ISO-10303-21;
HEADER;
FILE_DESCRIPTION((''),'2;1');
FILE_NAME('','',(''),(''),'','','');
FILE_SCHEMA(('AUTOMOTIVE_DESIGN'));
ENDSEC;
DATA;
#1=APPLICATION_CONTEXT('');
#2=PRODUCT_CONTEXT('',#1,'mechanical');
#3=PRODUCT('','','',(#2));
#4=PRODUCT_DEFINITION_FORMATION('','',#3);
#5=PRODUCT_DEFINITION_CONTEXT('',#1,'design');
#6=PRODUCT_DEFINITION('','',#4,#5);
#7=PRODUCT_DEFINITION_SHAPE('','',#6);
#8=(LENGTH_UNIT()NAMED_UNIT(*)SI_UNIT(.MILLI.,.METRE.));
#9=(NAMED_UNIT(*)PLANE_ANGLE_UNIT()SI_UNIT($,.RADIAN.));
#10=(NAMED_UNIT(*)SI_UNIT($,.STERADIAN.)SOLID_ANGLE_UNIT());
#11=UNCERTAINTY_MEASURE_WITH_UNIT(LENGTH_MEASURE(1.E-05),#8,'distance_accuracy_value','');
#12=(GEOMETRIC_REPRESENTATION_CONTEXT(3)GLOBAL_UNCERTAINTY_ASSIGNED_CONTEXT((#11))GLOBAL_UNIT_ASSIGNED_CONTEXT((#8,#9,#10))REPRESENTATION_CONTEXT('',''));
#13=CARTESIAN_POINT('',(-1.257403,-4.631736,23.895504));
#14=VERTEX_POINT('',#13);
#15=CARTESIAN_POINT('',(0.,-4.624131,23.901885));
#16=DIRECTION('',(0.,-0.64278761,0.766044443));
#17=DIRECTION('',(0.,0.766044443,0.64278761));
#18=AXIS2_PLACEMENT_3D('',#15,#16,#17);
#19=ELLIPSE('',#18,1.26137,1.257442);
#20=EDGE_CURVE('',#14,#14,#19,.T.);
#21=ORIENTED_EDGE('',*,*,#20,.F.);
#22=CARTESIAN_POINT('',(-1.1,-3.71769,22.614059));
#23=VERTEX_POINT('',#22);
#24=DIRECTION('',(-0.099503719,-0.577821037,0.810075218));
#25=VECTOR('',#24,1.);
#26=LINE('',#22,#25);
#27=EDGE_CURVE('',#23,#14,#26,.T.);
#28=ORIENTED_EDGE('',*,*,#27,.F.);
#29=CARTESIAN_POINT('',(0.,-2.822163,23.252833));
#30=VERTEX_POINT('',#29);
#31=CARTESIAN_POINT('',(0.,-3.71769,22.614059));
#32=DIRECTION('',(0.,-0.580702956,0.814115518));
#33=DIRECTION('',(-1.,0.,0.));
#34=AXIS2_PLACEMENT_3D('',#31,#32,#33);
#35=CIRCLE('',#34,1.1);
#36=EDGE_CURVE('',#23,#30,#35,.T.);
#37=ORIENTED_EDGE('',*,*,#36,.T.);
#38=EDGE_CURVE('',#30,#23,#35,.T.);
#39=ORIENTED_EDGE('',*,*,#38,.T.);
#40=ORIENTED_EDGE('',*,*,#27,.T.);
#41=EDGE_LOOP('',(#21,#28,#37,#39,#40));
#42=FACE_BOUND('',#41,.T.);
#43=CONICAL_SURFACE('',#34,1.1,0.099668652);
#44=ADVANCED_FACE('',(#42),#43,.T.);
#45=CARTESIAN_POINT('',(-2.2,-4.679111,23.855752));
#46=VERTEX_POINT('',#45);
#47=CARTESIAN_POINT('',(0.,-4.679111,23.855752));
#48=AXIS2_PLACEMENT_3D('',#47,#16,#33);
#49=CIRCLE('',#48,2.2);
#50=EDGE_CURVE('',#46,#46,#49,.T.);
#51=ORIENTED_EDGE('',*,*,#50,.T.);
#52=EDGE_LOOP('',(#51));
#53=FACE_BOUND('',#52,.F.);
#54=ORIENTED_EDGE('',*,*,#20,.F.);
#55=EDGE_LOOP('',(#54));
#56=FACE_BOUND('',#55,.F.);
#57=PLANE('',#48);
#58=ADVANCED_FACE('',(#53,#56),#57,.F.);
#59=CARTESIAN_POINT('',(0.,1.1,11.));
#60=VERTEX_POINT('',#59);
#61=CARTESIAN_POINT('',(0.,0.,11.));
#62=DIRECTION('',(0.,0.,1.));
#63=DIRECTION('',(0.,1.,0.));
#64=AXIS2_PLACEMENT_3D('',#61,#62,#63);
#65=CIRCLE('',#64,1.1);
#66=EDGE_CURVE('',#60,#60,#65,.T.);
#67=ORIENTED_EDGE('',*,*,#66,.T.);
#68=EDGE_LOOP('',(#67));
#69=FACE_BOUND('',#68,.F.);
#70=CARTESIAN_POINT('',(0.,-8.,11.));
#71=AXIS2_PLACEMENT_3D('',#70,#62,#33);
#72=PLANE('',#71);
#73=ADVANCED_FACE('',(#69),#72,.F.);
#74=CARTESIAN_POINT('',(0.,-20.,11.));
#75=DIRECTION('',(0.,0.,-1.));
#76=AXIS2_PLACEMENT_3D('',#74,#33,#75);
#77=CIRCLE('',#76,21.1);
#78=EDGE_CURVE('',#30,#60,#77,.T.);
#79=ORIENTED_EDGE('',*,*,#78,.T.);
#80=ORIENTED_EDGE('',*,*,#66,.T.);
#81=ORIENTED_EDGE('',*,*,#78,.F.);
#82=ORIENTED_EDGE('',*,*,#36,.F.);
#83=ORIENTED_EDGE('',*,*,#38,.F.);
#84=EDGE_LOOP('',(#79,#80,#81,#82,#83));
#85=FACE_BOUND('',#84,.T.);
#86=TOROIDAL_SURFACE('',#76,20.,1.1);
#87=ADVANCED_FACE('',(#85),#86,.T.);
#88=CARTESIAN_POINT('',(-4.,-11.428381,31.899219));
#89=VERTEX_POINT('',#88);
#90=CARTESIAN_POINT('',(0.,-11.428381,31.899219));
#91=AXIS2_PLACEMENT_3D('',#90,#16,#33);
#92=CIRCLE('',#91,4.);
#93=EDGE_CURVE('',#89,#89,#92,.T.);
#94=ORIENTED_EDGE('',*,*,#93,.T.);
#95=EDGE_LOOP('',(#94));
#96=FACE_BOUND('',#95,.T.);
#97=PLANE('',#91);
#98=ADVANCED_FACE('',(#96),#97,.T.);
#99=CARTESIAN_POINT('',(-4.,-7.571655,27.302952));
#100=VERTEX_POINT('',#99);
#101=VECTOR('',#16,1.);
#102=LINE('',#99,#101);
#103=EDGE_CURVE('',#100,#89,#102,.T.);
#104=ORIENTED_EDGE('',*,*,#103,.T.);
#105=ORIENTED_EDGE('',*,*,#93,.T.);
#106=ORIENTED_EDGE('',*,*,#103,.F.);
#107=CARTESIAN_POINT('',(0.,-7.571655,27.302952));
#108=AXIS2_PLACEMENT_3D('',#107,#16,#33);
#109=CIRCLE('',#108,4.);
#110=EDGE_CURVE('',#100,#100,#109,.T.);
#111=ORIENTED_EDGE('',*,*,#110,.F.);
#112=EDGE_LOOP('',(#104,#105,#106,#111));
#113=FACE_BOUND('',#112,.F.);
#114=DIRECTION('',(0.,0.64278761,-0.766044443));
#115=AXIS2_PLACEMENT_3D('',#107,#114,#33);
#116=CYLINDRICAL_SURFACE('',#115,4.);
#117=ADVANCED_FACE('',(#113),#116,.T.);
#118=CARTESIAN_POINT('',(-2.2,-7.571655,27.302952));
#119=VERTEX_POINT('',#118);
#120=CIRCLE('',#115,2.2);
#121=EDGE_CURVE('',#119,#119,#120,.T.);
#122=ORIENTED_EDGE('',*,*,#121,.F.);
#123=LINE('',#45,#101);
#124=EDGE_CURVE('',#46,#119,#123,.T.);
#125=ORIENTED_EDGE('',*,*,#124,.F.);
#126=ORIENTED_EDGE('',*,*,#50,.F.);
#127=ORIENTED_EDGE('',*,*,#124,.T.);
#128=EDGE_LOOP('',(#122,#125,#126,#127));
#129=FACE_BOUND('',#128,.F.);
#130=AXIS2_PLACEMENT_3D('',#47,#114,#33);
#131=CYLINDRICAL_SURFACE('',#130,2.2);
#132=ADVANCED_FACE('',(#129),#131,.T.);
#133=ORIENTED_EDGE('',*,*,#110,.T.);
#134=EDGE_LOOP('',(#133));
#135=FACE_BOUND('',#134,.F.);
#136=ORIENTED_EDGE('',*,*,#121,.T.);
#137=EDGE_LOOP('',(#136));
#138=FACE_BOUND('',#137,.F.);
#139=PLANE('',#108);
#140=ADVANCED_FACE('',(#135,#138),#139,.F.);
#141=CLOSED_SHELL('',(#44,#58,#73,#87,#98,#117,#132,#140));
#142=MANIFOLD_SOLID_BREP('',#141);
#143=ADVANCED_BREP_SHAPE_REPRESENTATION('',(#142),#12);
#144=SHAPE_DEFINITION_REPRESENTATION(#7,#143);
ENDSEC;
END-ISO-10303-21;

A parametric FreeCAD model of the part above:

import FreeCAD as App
import Part
import Sketcher

V = App.Vector
Q = App.Units.Quantity

doc = App.newDocument("Part")
body = doc.addObject("PartDesign::Body", "Body")

# Sketch on XZ plane
sketch1 = doc.addObject("Sketcher::SketchObject", "Sketch")
body.addObject(sketch1)
sketch1.AttachmentSupport = (doc.XZ_Plane, [""])
sketch1.MapMode = "FlatFace"
sketch1.addGeometry([
    Part.LineSegment(V(0, 0, 0), V(1.1, 0, 0)),
    Part.LineSegment(V(1.1, 0, 0), V(1.3, 2, 0)),
    Part.LineSegment(V(1.3, 2, 0), V(0, 2, 0)),
    Part.LineSegment(V(0, 2, 0), V(0, 0, 0)),
], False)
sketch1.addConstraint([
    Sketcher.Constraint("Coincident", 0, 2, 1, 1),
    Sketcher.Constraint("Coincident", 1, 2, 2, 1),
    Sketcher.Constraint("Coincident", 2, 2, 3, 1),
    Sketcher.Constraint("Coincident", 3, 2, 0, 1),
    Sketcher.Constraint("Horizontal", 0),
    Sketcher.Constraint("Horizontal", 2),
    Sketcher.Constraint("Vertical", 3),
    Sketcher.Constraint("Coincident", 3, 2, -1, 1),
    Sketcher.Constraint("DistanceY", 3, 2, 3, 1, Q("2 mm")),
    Sketcher.Constraint("DistanceX", 0, 1, 0, 2, Q("1.1 mm")),
    Sketcher.Constraint("DistanceX", 2, 2, 2, 1, Q("1.3 mm")),
])
revolution = doc.addObject("PartDesign::Revolution", "Revolution")
body.addObject(revolution)
revolution.Profile = sketch1
revolution.ReferenceAxis = (sketch1, ["V_Axis"])
revolution.Angle = 360
body2 = doc.addObject("PartDesign::Body", "Body001")
doc.recompute()

body.Placement = App.Placement(V(0, 0, 0), App.Rotation(V(1, 0, 0), 324.5))
boolean = doc.addObject("PartDesign::Boolean", "Boolean")
body2.addObject(boolean)
boolean.Type = "Fuse"
boolean.addObjects([body])
body3 = doc.addObject("PartDesign::Body", "Body002")
doc.recompute()

body2.Placement = App.Placement(V(0, 3.71769, 11.614059), App.Rotation(V(0, 0, 1), 0))
boolean2 = doc.addObject("PartDesign::Boolean", "Boolean001")
body3.addObject(boolean2)
boolean2.Type = "Fuse"
boolean2.addObjects([body2])
body4 = doc.addObject("PartDesign::Body", "Body003")

# Sketch on XY plane
sketch2 = doc.addObject("Sketcher::SketchObject", "Sketch001")
body4.addObject(sketch2)
sketch2.AttachmentSupport = (doc.getObject("XY_Plane003"), [""])
sketch2.MapMode = "FlatFace"
sketch2.addGeometry([
    Part.LineSegment(V(0, 24, 0), V(0, 0, 0)),
    Part.LineSegment(V(0, 0, 0), V(10, 0, 0)),
    Part.LineSegment(V(10, 0, 0), V(10, 24, 0)),
    Part.LineSegment(V(10, 24, 0), V(0, 24, 0)),
], False)
sketch2.addConstraint([
    Sketcher.Constraint("Coincident", 0, 2, 1, 1),
    Sketcher.Constraint("Coincident", 1, 2, 2, 1),
    Sketcher.Constraint("Coincident", 2, 2, 3, 1),
    Sketcher.Constraint("Coincident", 3, 2, 0, 1),
    Sketcher.Constraint("Vertical", 0),
    Sketcher.Constraint("Horizontal", 1),
    Sketcher.Constraint("Vertical", 2),
    Sketcher.Constraint("Horizontal", 3),
    Sketcher.Constraint("Coincident", 0, 2, -1, 1),
    Sketcher.Constraint("DistanceX", 1, 1, 1, 2, Q("10 mm")),
    Sketcher.Constraint("DistanceY", 0, 2, 0, 1, Q("24 mm")),
])
pad1 = doc.addObject("PartDesign::Pad", "Pad")
body4.addObject(pad1)
pad1.Profile = sketch2
pad1.Length = 22
body5 = doc.addObject("PartDesign::Body", "Body004")
doc.recompute()

body4.Placement = App.Placement(V(0, 0, 0), App.Rotation(V(1, 0, 0), 324.5))
boolean3 = doc.addObject("PartDesign::Boolean", "Boolean002")
body5.addObject(boolean3)
boolean3.Type = "Fuse"
boolean3.addObjects([body4])
body6 = doc.addObject("PartDesign::Body", "Body005")
doc.recompute()

body5.Placement = App.Placement(V(-5, 0.461228, 13.936871), App.Rotation(V(0, 0, 1), 0))
boolean4 = doc.addObject("PartDesign::Boolean", "Boolean003")
body6.addObject(boolean4)
boolean4.Type = "Fuse"
boolean4.addObjects([body5])
body7 = doc.addObject("PartDesign::Body", "Body006")

# Sketch on XY plane
sketch3 = doc.addObject("Sketcher::SketchObject", "Sketch002")
body7.addObject(sketch3)
sketch3.AttachmentSupport = (doc.getObject("XY_Plane006"), [""])
sketch3.MapMode = "FlatFace"
sketch3.addGeometry([
    Part.LineSegment(V(-5, 20, 0), V(-5, -4, 0)),
    Part.LineSegment(V(-5, -4, 0), V(5, -4, 0)),
    Part.LineSegment(V(5, -4, 0), V(5, 20, 0)),
    Part.LineSegment(V(5, 20, 0), V(-5, 20, 0)),
], False)
sketch3.addConstraint([
    Sketcher.Constraint("Coincident", 0, 2, 1, 1),
    Sketcher.Constraint("Coincident", 1, 2, 2, 1),
    Sketcher.Constraint("Coincident", 2, 2, 3, 1),
    Sketcher.Constraint("Coincident", 3, 2, 0, 1),
    Sketcher.Constraint("Vertical", 0),
    Sketcher.Constraint("Horizontal", 1),
    Sketcher.Constraint("Vertical", 2),
    Sketcher.Constraint("Horizontal", 3),
    Sketcher.Constraint("DistanceX", 1, 1, 1, 2, Q("10 mm")),
    Sketcher.Constraint("DistanceY", 0, 2, 0, 1, Q("24 mm")),
    Sketcher.Constraint("DistanceX", 0, 2, -1, 1, Q("5 mm")),
    Sketcher.Constraint("DistanceY", 0, 2, -1, 1, Q("4 mm")),
])
pad2 = doc.addObject("PartDesign::Pad", "Pad001")
body7.addObject(pad2)
pad2.Profile = sketch3
pad2.Length = 22
body8 = doc.addObject("PartDesign::Body", "Body007")

# Sketch on XZ plane
sketch4 = doc.addObject("Sketcher::SketchObject", "Sketch003")
body8.addObject(sketch4)
sketch4.AttachmentSupport = (doc.getObject("XZ_Plane007"), [""])
sketch4.MapMode = "FlatFace"
sketch4.addGeometry(Part.Circle(V(20, 0, 0), V(0, 0, 1), 1.1), False)
sketch4.addConstraint([
    Sketcher.Constraint("PointOnObject", 0, 3, -1),
    Sketcher.Constraint("Diameter", 0, Q("2.2 mm")),
    Sketcher.Constraint("DistanceX", -1, 1, 0, 3, Q("20 mm")),
])
revolution2 = doc.addObject("PartDesign::Revolution", "Revolution001")
body8.addObject(revolution2)
revolution2.Profile = sketch4
revolution2.ReferenceAxis = (sketch4, ["V_Axis"])
revolution2.Angle = 360
body9 = doc.addObject("PartDesign::Body", "Body008")
doc.recompute()

body8.Placement = App.Placement(V(0, 0, 0), App.Rotation(V(0, 1, 0), 90))
boolean5 = doc.addObject("PartDesign::Boolean", "Boolean004")
body9.addObject(boolean5)
boolean5.Type = "Fuse"
boolean5.addObjects([body8])
body10 = doc.addObject("PartDesign::Body", "Body009")
doc.recompute()

body9.Placement = App.Placement(V(0, 20, 0), App.Rotation(V(0, 0, 1), 0))
boolean6 = doc.addObject("PartDesign::Boolean", "Boolean005")
body10.addObject(boolean6)
boolean6.Type = "Fuse"
boolean6.addObjects([body9])
doc.recompute()

boolean7 = doc.addObject("PartDesign::Boolean", "Boolean006")
body10.addObject(boolean7)
boolean7.Type = "Common"
boolean7.addObjects([body7])
doc.recompute()

boolean8 = doc.addObject("PartDesign::Boolean", "Boolean007")
body10.addObject(boolean8)
boolean8.Type = "Cut"
boolean8.addObjects([body6])
body11 = doc.addObject("PartDesign::Body", "Body010")

# Sketch on XY plane
sketch5 = doc.addObject("Sketcher::SketchObject", "Sketch004")
body11.addObject(sketch5)
sketch5.AttachmentSupport = (doc.getObject("XY_Plane010"), [""])
sketch5.MapMode = "FlatFace"
sketch5.addGeometry(Part.Circle(V(0, 0, 0), V(0, 0, 1), 4), False)
sketch5.addConstraint([
    Sketcher.Constraint("Coincident", 0, 3, -1, 1),
    Sketcher.Constraint("Diameter", 0, Q("8 mm")),
])
pad3 = doc.addObject("PartDesign::Pad", "Pad002")
body11.addObject(pad3)
pad3.Profile = sketch5
pad3.Length = 6
body12 = doc.addObject("PartDesign::Body", "Body011")
doc.recompute()

body11.Placement = App.Placement(V(0, 0, 0), App.Rotation(V(1, 0, 0), 320))
boolean9 = doc.addObject("PartDesign::Boolean", "Boolean008")
body12.addObject(boolean9)
boolean9.Type = "Fuse"
boolean9.addObjects([body11])
body13 = doc.addObject("PartDesign::Body", "Body012")
doc.recompute()

body12.Placement = App.Placement(V(0, 7.571655, 16.302952), App.Rotation(V(0, 0, 1), 0))
boolean10 = doc.addObject("PartDesign::Boolean", "Boolean009")
body13.addObject(boolean10)
boolean10.Type = "Fuse"
boolean10.addObjects([body12])
body14 = doc.addObject("PartDesign::Body", "Body013")

# Sketch on XY plane
sketch6 = doc.addObject("Sketcher::SketchObject", "Sketch005")
body14.addObject(sketch6)
sketch6.AttachmentSupport = (doc.getObject("XY_Plane013"), [""])
sketch6.MapMode = "FlatFace"
sketch6.addGeometry(Part.Circle(V(0, 0, 0), V(0, 0, 1), 2.2), False)
sketch6.addConstraint([
    Sketcher.Constraint("Coincident", 0, 3, -1, 1),
    Sketcher.Constraint("Diameter", 0, Q("4.4 mm")),
])
pad4 = doc.addObject("PartDesign::Pad", "Pad003")
body14.addObject(pad4)
pad4.Profile = sketch6
pad4.Length = 10
body15 = doc.addObject("PartDesign::Body", "Body014")
doc.recompute()

body14.Placement = App.Placement(V(0, 0, 0), App.Rotation(V(1, 0, 0), 320))
boolean11 = doc.addObject("PartDesign::Boolean", "Boolean010")
body15.addObject(boolean11)
boolean11.Type = "Fuse"
boolean11.addObjects([body14])
body16 = doc.addObject("PartDesign::Body", "Body015")
doc.recompute()

body15.Placement = App.Placement(V(0, 4.679111, 12.855752), App.Rotation(V(0, 0, 1), 0))
boolean12 = doc.addObject("PartDesign::Boolean", "Boolean011")
body16.addObject(boolean12)
boolean12.Type = "Fuse"
boolean12.addObjects([body15])
doc.recompute()

boolean13 = doc.addObject("PartDesign::Boolean", "Boolean012")
body16.addObject(boolean13)
boolean13.Type = "Fuse"
boolean13.addObjects([body3])
doc.recompute()

boolean14 = doc.addObject("PartDesign::Boolean", "Boolean013")
body16.addObject(boolean14)
boolean14.Type = "Fuse"
boolean14.addObjects([body10])
doc.recompute()

boolean15 = doc.addObject("PartDesign::Boolean", "Boolean014")
body16.addObject(boolean15)
boolean15.Type = "Fuse"
boolean15.addObjects([body13])
body17 = doc.addObject("PartDesign::Body", "Body016")
doc.recompute()

body16.Placement = App.Placement(V(0, 0, 11), App.Rotation(V(0, 0, 1), 180))
boolean16 = doc.addObject("PartDesign::Boolean", "Boolean015")
body17.addObject(boolean16)
boolean16.Type = "Fuse"
boolean16.addObjects([body16])

doc.recompute()
